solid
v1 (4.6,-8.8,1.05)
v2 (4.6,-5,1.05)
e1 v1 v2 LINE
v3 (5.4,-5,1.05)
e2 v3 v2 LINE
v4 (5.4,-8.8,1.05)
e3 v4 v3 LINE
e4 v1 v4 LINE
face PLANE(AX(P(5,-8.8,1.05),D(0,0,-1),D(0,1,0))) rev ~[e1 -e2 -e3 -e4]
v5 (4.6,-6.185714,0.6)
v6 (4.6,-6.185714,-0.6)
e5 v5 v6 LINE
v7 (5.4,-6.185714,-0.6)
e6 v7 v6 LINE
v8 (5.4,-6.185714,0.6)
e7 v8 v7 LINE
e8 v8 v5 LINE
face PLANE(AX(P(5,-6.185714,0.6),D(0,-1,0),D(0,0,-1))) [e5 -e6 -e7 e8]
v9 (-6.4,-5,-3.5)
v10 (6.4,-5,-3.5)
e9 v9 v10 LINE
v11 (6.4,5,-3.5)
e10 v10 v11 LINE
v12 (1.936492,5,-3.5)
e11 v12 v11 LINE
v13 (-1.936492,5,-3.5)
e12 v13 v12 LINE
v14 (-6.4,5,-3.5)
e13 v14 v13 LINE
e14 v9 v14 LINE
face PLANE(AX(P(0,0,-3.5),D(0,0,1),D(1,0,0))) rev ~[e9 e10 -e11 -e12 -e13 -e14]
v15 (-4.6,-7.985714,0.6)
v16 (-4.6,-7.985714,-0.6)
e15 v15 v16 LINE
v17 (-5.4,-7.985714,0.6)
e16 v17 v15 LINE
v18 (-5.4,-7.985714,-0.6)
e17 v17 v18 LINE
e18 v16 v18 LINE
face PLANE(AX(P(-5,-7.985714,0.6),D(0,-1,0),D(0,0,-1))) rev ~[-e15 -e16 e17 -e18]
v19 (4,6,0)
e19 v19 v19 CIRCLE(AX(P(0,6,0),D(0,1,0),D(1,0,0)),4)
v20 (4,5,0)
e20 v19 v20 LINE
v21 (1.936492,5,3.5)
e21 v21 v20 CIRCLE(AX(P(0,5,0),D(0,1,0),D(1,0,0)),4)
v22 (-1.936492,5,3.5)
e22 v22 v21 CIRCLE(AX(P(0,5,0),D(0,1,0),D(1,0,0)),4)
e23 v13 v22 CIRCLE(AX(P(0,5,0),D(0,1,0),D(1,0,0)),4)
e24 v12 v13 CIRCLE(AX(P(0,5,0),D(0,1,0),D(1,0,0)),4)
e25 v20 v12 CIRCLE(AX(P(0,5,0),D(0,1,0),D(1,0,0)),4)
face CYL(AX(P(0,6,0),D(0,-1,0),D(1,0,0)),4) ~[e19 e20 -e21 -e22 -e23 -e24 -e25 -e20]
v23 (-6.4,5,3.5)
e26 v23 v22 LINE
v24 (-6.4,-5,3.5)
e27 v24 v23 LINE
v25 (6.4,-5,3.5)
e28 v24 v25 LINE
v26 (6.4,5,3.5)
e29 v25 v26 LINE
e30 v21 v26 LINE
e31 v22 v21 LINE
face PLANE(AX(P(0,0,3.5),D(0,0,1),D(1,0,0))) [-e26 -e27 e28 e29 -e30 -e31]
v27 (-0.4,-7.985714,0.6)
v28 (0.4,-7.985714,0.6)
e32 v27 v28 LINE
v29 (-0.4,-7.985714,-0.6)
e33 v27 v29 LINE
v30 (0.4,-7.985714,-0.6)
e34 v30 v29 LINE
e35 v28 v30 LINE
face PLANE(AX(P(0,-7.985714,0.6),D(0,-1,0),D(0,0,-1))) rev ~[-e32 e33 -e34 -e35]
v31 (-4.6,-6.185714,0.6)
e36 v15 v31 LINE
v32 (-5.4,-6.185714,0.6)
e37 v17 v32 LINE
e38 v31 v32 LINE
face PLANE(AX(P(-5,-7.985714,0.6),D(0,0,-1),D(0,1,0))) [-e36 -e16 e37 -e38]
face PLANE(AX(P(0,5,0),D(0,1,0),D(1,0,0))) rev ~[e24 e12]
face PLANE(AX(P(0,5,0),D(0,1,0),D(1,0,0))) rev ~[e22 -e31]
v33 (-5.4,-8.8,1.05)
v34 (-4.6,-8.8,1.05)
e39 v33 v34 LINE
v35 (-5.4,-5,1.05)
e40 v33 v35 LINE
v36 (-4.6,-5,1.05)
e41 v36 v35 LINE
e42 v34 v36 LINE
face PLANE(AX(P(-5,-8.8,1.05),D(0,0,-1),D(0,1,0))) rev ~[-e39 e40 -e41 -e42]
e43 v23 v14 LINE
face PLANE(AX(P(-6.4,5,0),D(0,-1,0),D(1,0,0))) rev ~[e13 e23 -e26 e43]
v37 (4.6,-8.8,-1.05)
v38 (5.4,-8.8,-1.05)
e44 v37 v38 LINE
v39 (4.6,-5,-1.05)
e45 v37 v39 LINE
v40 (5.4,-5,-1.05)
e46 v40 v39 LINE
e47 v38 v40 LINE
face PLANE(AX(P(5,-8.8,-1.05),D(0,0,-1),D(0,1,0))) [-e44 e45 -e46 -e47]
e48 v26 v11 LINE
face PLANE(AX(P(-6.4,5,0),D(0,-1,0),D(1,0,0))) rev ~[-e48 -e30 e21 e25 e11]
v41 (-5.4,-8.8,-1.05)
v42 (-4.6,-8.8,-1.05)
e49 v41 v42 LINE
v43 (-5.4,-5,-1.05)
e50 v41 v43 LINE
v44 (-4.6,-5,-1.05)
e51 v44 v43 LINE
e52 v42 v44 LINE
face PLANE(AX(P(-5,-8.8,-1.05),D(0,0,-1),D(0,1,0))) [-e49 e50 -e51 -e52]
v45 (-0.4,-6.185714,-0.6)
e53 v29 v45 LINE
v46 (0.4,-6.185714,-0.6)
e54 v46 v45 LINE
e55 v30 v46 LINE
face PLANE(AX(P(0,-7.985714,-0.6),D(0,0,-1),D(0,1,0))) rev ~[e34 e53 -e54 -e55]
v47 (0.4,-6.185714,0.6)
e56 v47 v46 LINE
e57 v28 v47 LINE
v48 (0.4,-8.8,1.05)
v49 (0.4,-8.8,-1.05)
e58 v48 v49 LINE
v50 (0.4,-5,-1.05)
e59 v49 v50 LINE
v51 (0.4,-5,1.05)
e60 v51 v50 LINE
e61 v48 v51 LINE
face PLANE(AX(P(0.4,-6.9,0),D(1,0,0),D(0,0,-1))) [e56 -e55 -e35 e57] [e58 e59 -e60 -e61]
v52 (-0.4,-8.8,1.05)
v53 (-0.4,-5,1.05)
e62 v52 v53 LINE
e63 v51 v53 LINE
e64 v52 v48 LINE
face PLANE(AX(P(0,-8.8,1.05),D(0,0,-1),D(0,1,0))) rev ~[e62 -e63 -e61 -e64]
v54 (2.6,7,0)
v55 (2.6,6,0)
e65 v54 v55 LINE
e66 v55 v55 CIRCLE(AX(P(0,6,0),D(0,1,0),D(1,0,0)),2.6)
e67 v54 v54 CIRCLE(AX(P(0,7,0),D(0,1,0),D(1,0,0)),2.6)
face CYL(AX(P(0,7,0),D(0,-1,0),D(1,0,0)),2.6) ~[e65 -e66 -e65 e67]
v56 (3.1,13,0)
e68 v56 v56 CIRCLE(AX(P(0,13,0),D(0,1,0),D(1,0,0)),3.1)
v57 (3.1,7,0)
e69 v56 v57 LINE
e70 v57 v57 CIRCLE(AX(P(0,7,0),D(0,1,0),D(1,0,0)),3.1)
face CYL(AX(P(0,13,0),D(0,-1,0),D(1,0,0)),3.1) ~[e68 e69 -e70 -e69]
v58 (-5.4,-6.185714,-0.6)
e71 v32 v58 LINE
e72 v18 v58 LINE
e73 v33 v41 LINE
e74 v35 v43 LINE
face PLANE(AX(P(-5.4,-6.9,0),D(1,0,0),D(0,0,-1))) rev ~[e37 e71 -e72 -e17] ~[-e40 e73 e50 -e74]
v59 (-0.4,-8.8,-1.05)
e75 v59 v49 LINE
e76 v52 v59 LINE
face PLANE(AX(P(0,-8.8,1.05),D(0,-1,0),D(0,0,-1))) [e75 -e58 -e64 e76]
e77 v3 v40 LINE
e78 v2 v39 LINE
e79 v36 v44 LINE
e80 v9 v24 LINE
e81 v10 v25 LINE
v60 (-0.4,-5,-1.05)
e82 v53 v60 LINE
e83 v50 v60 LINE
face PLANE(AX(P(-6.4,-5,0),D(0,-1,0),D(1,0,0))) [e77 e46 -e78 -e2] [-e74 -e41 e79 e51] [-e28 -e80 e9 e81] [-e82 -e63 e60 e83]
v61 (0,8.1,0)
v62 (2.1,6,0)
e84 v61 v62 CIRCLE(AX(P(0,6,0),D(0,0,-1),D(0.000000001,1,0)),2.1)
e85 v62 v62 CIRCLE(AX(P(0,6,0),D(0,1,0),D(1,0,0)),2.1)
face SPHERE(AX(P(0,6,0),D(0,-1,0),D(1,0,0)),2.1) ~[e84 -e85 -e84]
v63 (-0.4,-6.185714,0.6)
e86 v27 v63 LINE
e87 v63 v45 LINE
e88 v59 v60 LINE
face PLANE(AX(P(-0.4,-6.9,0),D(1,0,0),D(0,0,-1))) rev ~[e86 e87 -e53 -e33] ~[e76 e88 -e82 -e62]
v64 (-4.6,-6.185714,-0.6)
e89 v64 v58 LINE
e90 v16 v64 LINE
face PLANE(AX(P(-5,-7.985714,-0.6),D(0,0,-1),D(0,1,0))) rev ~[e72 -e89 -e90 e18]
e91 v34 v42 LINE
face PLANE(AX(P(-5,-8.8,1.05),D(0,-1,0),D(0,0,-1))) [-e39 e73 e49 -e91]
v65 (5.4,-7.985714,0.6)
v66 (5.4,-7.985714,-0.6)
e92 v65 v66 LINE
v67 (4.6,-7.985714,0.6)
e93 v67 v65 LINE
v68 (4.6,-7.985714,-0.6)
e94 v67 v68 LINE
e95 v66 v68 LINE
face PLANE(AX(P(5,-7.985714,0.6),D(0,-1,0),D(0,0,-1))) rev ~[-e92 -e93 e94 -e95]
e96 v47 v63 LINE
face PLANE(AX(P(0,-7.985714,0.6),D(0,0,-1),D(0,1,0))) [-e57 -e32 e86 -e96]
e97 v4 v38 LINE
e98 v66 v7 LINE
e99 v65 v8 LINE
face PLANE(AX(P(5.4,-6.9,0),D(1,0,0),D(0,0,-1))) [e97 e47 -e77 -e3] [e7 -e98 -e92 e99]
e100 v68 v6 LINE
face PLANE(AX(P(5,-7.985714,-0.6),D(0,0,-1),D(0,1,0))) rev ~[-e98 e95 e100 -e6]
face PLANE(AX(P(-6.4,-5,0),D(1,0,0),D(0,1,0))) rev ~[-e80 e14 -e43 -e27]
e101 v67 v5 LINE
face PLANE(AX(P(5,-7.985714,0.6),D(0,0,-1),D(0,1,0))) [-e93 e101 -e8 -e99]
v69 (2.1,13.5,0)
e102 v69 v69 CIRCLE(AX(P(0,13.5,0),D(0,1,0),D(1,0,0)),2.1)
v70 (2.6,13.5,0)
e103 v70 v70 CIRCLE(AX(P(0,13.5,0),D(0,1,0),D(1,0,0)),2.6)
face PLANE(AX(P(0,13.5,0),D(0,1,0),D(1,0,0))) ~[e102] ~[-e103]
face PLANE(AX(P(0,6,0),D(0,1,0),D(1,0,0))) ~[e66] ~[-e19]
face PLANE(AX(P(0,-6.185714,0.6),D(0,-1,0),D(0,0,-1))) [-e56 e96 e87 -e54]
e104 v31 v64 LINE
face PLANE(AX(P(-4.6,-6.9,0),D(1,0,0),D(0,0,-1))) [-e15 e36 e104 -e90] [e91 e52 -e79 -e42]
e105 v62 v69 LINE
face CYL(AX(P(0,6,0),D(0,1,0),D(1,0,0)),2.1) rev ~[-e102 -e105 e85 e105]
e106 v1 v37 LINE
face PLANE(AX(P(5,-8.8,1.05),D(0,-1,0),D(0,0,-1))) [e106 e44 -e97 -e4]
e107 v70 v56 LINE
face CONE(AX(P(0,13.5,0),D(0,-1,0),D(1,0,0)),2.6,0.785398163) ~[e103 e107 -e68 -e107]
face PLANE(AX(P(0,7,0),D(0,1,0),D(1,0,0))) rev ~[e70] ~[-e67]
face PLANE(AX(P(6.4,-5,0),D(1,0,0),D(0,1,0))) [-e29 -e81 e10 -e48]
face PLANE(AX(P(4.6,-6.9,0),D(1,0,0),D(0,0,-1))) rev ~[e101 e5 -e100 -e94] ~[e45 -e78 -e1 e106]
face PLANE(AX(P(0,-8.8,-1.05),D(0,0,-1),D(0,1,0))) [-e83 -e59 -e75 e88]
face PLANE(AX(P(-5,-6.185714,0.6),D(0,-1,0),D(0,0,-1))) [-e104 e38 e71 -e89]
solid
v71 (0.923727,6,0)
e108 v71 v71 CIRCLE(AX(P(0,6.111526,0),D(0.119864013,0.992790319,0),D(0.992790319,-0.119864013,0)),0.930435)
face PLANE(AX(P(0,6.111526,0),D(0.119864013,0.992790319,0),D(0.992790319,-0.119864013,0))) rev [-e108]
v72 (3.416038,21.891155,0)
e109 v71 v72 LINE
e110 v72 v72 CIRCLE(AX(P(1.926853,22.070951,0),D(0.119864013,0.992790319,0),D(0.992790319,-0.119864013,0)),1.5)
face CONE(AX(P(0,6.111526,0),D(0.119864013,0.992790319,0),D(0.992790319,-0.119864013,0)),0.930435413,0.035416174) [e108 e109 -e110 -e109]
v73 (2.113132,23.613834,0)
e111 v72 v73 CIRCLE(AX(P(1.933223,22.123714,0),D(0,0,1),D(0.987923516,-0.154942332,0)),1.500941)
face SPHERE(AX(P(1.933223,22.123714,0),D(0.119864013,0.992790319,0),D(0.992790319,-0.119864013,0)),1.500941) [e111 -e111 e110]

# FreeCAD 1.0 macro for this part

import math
import FreeCAD as App
import Part
import Sketcher

V = App.Vector
Q = App.Units.Quantity


def add_polygon(sketch, points):
    """Adds a closed chain of lines whose ends are joined by coincident constraints."""
    first, n = sketch.GeometryCount, len(points)
    for a, b in zip(points, points[1:] + points[:1]):
        sketch.addGeometry(Part.LineSegment(App.Vector(*a, 0), App.Vector(*b, 0)), False)
    for i in range(n):
        sketch.addConstraint(Sketcher.Constraint("Coincident", first + i, 2, first + (i + 1) % n, 1))

doc = App.newDocument("Part")
body = doc.addObject("PartDesign::Body", "Body")

# Sketch on XY plane
sketch1 = body.newObject("Sketcher::SketchObject", "Sketch")
sketch1.AttachmentSupport = (doc.getObject("XY_Plane"), [""])
sketch1.MapMode = "FlatFace"
add_polygon(sketch1, [(-6, 5), (-6, -5), (6, -5), (6, 5)])  # lines 0-3
sketch1.addConstraint([
    Sketcher.Constraint("Vertical", 0),
    Sketcher.Constraint("Horizontal", 1),
    Sketcher.Constraint("Vertical", 2),
    Sketcher.Constraint("Horizontal", 3),
    Sketcher.Constraint("Symmetric", 0, 2, 2, 2, -1, 1),
    Sketcher.Constraint("DistanceY", 0, 2, 0, 1, Q("10 mm")),
    Sketcher.Constraint("DistanceX", 1, 1, 1, 2, Q("12.8 mm")),
])
pad1 = body.newObject("PartDesign::Pad", "Pad")
pad1.Profile = sketch1
pad1.Length = 7
pad1.Midplane = True

# Sketch on XY plane
sketch2 = body.newObject("Sketcher::SketchObject", "Sketch001")
sketch2.AttachmentSupport = (doc.getObject("XY_Plane"), [""])
sketch2.MapMode = "FlatFace"
sketch2.addGeometry([
    Part.LineSegment(V(0, 8.1, 0), V(0, 5, 0)),  # 0
    Part.LineSegment(V(0, 5, 0), V(4, 5, 0)),  # 1
    Part.LineSegment(V(4, 5, 0), V(4, 6, 0)),  # 2
    Part.LineSegment(V(4, 6, 0), V(2.6, 6, 0)),  # 3
    Part.LineSegment(V(2.6, 6, 0), V(2.6, 7, 0)),  # 4
    Part.LineSegment(V(2.6, 7, 0), V(3.1, 7, 0)),  # 5
    Part.LineSegment(V(3.1, 7, 0), V(3.1, 13, 0)),  # 6
    Part.LineSegment(V(3.1, 13, 0), V(2.6, 13.5, 0)),  # 7
    Part.LineSegment(V(2.6, 13.5, 0), V(2.1, 13.5, 0)),  # 8
    Part.LineSegment(V(2.1, 13.5, 0), V(2.1, 6, 0)),  # 9
    Part.ArcOfCircle(Part.Circle(V(0, 6, 0), V(0, 0, 1), 2.1), math.radians(0), math.radians(90)),  # 10
], False)
sketch2.addConstraint([
    Sketcher.Constraint("Coincident", 0, 2, 1, 1),
    Sketcher.Constraint("Coincident", 1, 2, 2, 1),
    Sketcher.Constraint("Coincident", 2, 2, 3, 1),
    Sketcher.Constraint("Coincident", 3, 2, 4, 1),
    Sketcher.Constraint("Coincident", 4, 2, 5, 1),
    Sketcher.Constraint("Coincident", 5, 2, 6, 1),
    Sketcher.Constraint("Coincident", 6, 2, 7, 1),
    Sketcher.Constraint("Coincident", 7, 2, 8, 1),
    Sketcher.Constraint("Coincident", 8, 2, 9, 1),
    Sketcher.Constraint("Tangent", 9, 2, 10, 1),
    Sketcher.Constraint("Coincident", 10, 2, 0, 1),
    Sketcher.Constraint("Vertical", 0),
    Sketcher.Constraint("Horizontal", 1),
    Sketcher.Constraint("Vertical", 2),
    Sketcher.Constraint("Horizontal", 3),
    Sketcher.Constraint("Vertical", 4),
    Sketcher.Constraint("Horizontal", 5),
    Sketcher.Constraint("Vertical", 6),
    Sketcher.Constraint("Horizontal", 8),
    Sketcher.Constraint("Vertical", 9),
    Sketcher.Constraint("PointOnObject", 10, 3, -2),
    Sketcher.Constraint("PointOnObject", 0, 2, -2),
    Sketcher.Constraint("Horizontal", 10, 3, 2, 2),
    Sketcher.Constraint("Vertical", 4, 2, 7, 2),
    Sketcher.Constraint("Equal", 5, 8),
    Sketcher.Constraint("Equal", 2, 4),
    Sketcher.Constraint("Radius", 10, Q("2.1 mm")),
    Sketcher.Constraint("DistanceX", 1, 1, 1, 2, Q("4 mm")),
    Sketcher.Constraint("DistanceY", 2, 1, 2, 2, Q("1 mm")),
    Sketcher.Constraint("DistanceY", 6, 1, 6, 2, Q("6 mm")),
    Sketcher.Constraint("Angle", 7, Q("135 deg")),
    Sketcher.Constraint("DistanceX", 3, 2, 3, 1, Q("1.4 mm")),
    Sketcher.Constraint("DistanceY", -1, 1, 10, 3, Q("6 mm")),
])
revolution = body.newObject("PartDesign::Revolution", "Revolution")
revolution.Profile = sketch2
revolution.ReferenceAxis = (sketch2, ["V_Axis"])
revolution.Angle = 360

# Sketch on YZ plane
sketch3 = body.newObject("Sketcher::SketchObject", "Sketch002")
sketch3.AttachmentSupport = (doc.getObject("YZ_Plane"), [""])
sketch3.MapMode = "FlatFace"
add_polygon(sketch3, [(-5, 1.1), (-8.8, 1.1), (-8.8, -1.1), (-5, -1.1)])  # lines 0-3
add_polygon(sketch3, [(-8, -0.6), (-8, 0.6), (-6.2, 0.6), (-6.2, -0.6)])  # lines 4-7
sketch3.addConstraint([
    Sketcher.Constraint("Horizontal", 0),
    Sketcher.Constraint("Vertical", 1),
    Sketcher.Constraint("Horizontal", 2),
    Sketcher.Constraint("Vertical", 3),
    Sketcher.Constraint("Vertical", 4),
    Sketcher.Constraint("Horizontal", 5),
    Sketcher.Constraint("Vertical", 6),
    Sketcher.Constraint("Horizontal", 7),
    Sketcher.Constraint("DistanceX", 0, 2, 0, 1, Q("3.8 mm")),
    Sketcher.Constraint("DistanceX", 5, 1, 5, 2, Q("1.8 mm")),
    Sketcher.Constraint("DistanceY", 1, 2, 1, 1, Q("2.1 mm")),
    Sketcher.Constraint("DistanceY", 4, 1, 4, 2, Q("1.2 mm")),
    Sketcher.Constraint("DistanceX", 2, 2, -1, 1, Q("5 mm")),
    Sketcher.Constraint("DistanceY", -1, 1, 4, 2, Q("0.6 mm")),
    Sketcher.Constraint("DistanceY", -1, 1, 0, 2, Q("1.05 mm")),
    Sketcher.Constraint("DistanceX", 4, 2, -1, 1, Q("7.985714 mm")),
])
pad2 = body.newObject("PartDesign::Pad", "Pad001")
pad2.Profile = sketch3
pad2.Length = 0.8
pad2.Midplane = True
doc.recompute()

linearpattern = body.newObject("PartDesign::LinearPattern", "LinearPattern")
linearpattern.Originals = [pad2]
linearpattern.Direction = (doc.getObject("X_Axis"), [""])
linearpattern.Mode = "offset"
linearpattern.Offset = 5
linearpattern.Occurrences = 2
body.Tip = linearpattern
doc.recompute()

linearpattern2 = body.newObject("PartDesign::LinearPattern", "LinearPattern001")
linearpattern2.Originals = [pad2]
linearpattern2.Direction = (doc.getObject("X_Axis"), [""])
linearpattern2.Mode = "offset"
linearpattern2.Offset = 5
linearpattern2.Occurrences = 2
linearpattern2.Reversed = True
body.Tip = linearpattern2
body2 = doc.addObject("PartDesign::Body", "Body001")

# Sketch on XY plane
sketch4 = body2.newObject("Sketcher::SketchObject", "Sketch003")
sketch4.AttachmentSupport = (doc.getObject("XY_Plane001"), [""])
sketch4.MapMode = "FlatFace"
sketch4.addGeometry([
    Part.LineSegment(V(2.1, 23.6, 0), V(0.9, 13.7, 0)),  # 0
    Part.LineSegment(V(0.9, 13.7, 0), V(0, 6.1, 0)),  # 1
    Part.LineSegment(V(0, 6.1, 0), V(0.9, 6, 0)),  # 2
    Part.LineSegment(V(0.9, 6, 0), V(3.4, 21.9, 0)),  # 3
    Part.ArcOfCircle(Part.Circle(V(1.9, 22.1, 0), V(0, 0, 1), 1.5), math.radians(-9), math.radians(83)),  # 4
], False)
sketch4.addGeometry(Part.LineSegment(V(0, 6.1, 0), V(2.1, 23.6, 0)), True)  # axis
sketch4.addConstraint([
    Sketcher.Constraint("Coincident", 0, 2, 1, 1),
    Sketcher.Constraint("Coincident", 1, 2, 2, 1),
    Sketcher.Constraint("Coincident", 2, 2, 3, 1),
    Sketcher.Constraint("Tangent", 3, 2, 4, 1),
    Sketcher.Constraint("Coincident", 4, 2, 0, 1),
    Sketcher.Constraint("Coincident", 5, 1, 1, 2),
    Sketcher.Constraint("Coincident", 5, 2, 4, 2),
    Sketcher.Constraint("PointOnObject", 1, 2, -2),
    Sketcher.Constraint("Parallel", 0, 1),
    Sketcher.Constraint("Perpendicular", 1, 2),
    Sketcher.Constraint("Distance", 0, Q("10 mm")),
    Sketcher.Constraint("DistanceY", -1, 1, 2, 2, Q("6 mm")),
    Sketcher.Constraint("Radius", 4, Q("1.500941 mm")),
    Sketcher.Constraint("Distance", 1, Q("7.629411 mm")),
    Sketcher.Constraint("Distance", 3, Q("16.08541 mm")),
    Sketcher.Constraint("DistanceX", -1, 1, 0, 2, Q("0.914492 mm")),
    Sketcher.Constraint("DistanceY", -1, 1, 0, 2, Q("13.685931 mm")),
])
revolution2 = body2.newObject("PartDesign::Revolution", "Revolution001")
revolution2.Profile = sketch4
revolution2.ReferenceAxis = (sketch4, ["Axis0"])
revolution2.Angle = 360

doc.recompute()
